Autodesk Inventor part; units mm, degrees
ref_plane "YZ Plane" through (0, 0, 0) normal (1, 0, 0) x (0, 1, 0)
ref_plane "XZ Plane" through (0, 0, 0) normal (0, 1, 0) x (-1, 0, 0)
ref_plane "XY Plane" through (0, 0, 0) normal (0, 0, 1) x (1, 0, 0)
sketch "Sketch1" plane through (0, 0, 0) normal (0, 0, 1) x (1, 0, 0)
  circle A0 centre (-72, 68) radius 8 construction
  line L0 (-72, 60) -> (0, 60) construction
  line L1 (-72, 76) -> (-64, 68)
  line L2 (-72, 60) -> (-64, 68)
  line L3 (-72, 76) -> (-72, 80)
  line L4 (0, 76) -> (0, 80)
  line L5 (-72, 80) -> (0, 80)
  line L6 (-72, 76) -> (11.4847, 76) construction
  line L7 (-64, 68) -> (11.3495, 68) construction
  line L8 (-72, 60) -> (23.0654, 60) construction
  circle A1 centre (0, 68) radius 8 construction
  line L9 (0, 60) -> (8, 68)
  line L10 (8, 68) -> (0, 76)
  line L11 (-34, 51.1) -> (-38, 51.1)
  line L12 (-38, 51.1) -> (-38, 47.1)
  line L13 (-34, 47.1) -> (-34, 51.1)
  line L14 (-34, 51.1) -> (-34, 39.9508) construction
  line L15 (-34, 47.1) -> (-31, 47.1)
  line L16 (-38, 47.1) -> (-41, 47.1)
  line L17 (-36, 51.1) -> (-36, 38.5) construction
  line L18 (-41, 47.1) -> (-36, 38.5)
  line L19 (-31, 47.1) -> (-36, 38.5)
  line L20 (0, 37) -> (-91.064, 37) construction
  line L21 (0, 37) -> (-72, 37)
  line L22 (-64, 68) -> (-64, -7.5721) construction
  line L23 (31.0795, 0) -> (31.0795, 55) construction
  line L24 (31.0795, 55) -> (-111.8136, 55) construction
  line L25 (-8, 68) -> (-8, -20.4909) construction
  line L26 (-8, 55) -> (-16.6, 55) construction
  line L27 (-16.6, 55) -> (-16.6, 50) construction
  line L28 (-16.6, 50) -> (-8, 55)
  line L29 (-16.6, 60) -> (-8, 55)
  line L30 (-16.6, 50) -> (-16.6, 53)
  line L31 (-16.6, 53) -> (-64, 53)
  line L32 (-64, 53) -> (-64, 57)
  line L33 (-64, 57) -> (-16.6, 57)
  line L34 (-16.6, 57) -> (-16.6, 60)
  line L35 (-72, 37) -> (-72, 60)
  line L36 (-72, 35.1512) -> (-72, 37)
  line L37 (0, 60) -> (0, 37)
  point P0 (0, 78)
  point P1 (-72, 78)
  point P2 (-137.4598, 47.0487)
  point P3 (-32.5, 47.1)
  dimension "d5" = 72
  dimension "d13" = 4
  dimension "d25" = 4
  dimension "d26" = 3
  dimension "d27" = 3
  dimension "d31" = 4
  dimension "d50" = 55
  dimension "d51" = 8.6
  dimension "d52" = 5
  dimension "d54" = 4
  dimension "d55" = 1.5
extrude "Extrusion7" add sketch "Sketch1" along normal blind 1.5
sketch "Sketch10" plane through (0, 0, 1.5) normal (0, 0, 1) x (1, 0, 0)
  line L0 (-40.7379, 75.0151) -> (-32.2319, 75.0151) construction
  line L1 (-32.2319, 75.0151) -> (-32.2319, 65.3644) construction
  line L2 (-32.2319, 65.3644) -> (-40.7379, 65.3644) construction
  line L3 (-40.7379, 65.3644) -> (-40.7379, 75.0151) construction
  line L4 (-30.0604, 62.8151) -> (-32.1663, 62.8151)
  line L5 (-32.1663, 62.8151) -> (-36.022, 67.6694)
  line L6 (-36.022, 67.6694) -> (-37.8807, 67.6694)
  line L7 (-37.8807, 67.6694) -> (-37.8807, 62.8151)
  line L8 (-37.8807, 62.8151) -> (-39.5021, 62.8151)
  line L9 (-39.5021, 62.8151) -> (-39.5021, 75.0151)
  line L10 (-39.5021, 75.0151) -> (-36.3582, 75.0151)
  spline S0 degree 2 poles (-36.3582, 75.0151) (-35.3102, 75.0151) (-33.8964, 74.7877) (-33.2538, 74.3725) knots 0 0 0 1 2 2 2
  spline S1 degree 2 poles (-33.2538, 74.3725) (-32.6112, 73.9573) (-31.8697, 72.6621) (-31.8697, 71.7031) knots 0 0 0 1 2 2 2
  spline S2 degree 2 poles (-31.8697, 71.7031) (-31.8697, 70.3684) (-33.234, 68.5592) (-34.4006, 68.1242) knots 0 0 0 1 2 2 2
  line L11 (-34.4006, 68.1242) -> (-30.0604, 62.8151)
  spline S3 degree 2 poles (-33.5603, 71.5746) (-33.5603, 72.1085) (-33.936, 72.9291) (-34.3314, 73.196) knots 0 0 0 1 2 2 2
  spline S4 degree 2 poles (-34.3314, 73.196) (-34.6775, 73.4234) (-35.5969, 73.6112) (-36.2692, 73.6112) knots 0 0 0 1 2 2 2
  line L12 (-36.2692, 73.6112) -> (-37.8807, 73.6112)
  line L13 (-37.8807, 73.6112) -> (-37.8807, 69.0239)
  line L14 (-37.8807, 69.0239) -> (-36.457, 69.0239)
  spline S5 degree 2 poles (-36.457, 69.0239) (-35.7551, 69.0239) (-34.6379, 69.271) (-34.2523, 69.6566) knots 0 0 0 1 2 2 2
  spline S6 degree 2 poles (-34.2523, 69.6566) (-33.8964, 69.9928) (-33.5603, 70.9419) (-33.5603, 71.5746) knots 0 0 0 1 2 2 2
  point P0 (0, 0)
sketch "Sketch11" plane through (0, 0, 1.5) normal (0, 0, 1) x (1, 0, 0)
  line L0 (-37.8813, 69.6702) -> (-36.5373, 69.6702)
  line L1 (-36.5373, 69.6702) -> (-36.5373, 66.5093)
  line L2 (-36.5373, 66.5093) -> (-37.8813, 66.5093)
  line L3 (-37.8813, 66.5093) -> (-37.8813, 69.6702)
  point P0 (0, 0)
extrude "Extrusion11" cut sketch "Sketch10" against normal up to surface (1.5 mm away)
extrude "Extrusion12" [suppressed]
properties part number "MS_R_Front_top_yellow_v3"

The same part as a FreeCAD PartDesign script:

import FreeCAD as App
import Part
import Sketcher

V = App.Vector
Q = App.Units.Quantity

doc = App.newDocument("Part")
body = doc.addObject("PartDesign::Body", "Body")
body.AllowCompound = True

# Sketch on XY plane
sketch1 = body.newObject("Sketcher::SketchObject", "Sketch")
sketch1.AttachmentSupport = (doc.getObject("XY_Plane"), [""])
sketch1.MapMode = "FlatFace"
sketch1.addGeometry([
    Part.LineSegment(V(-72, 80, 0), V(-72, 76, 0)),  # 0
    Part.LineSegment(V(-72, 76, 0), V(-64, 68, 0)),  # 1
    Part.LineSegment(V(-64, 68, 0), V(-72, 60, 0)),  # 2
    Part.LineSegment(V(-72, 60, 0), V(-72, 37, 0)),  # 3
    Part.LineSegment(V(-72, 37, 0), V(0, 37, 0)),  # 4
    Part.LineSegment(V(0, 37, 0), V(0, 60, 0)),  # 5
    Part.LineSegment(V(0, 60, 0), V(8, 68, 0)),  # 6
    Part.LineSegment(V(8, 68, 0), V(0, 76, 0)),  # 7
    Part.LineSegment(V(0, 76, 0), V(0, 80, 0)),  # 8
    Part.LineSegment(V(0, 80, 0), V(-72, 80, 0)),  # 9
    Part.LineSegment(V(-38, 51.1, 0), V(-34, 51.1, 0)),  # 10
    Part.LineSegment(V(-34, 51.1, 0), V(-34, 47.1, 0)),  # 11
    Part.LineSegment(V(-34, 47.1, 0), V(-31, 47.1, 0)),  # 12
    Part.LineSegment(V(-31, 47.1, 0), V(-36, 38.5, 0)),  # 13
    Part.LineSegment(V(-36, 38.5, 0), V(-41, 47.1, 0)),  # 14
    Part.LineSegment(V(-41, 47.1, 0), V(-38, 47.1, 0)),  # 15
    Part.LineSegment(V(-38, 47.1, 0), V(-38, 51.1, 0)),  # 16
    Part.LineSegment(V(-8, 55, 0), V(-16.6, 50, 0)),  # 17
    Part.LineSegment(V(-16.6, 50, 0), V(-16.6, 53, 0)),  # 18
    Part.LineSegment(V(-16.6, 53, 0), V(-64, 53, 0)),  # 19
    Part.LineSegment(V(-64, 53, 0), V(-64, 57, 0)),  # 20
    Part.LineSegment(V(-64, 57, 0), V(-16.6, 57, 0)),  # 21
    Part.LineSegment(V(-16.6, 57, 0), V(-16.6, 60, 0)),  # 22
    Part.LineSegment(V(-16.6, 60, 0), V(-8, 55, 0)),  # 23
], False)
sketch1.addConstraint([
    Sketcher.Constraint("Coincident", 0, 2, 1, 1),
    Sketcher.Constraint("Coincident", 1, 2, 2, 1),
    Sketcher.Constraint("Coincident", 2, 2, 3, 1),
    Sketcher.Constraint("Coincident", 3, 2, 4, 1),
    Sketcher.Constraint("Coincident", 4, 2, 5, 1),
    Sketcher.Constraint("Coincident", 5, 2, 6, 1),
    Sketcher.Constraint("Coincident", 6, 2, 7, 1),
    Sketcher.Constraint("Coincident", 7, 2, 8, 1),
    Sketcher.Constraint("Coincident", 8, 2, 9, 1),
    Sketcher.Constraint("Coincident", 9, 2, 0, 1),
    Sketcher.Constraint("Coincident", 10, 2, 11, 1),
    Sketcher.Constraint("Coincident", 11, 2, 12, 1),
    Sketcher.Constraint("Coincident", 12, 2, 13, 1),
    Sketcher.Constraint("Coincident", 13, 2, 14, 1),
    Sketcher.Constraint("Coincident", 14, 2, 15, 1),
    Sketcher.Constraint("Coincident", 15, 2, 16, 1),
    Sketcher.Constraint("Coincident", 16, 2, 10, 1),
    Sketcher.Constraint("Coincident", 17, 2, 18, 1),
    Sketcher.Constraint("Coincident", 18, 2, 19, 1),
    Sketcher.Constraint("Coincident", 19, 2, 20, 1),
    Sketcher.Constraint("Coincident", 20, 2, 21, 1),
    Sketcher.Constraint("Coincident", 21, 2, 22, 1),
    Sketcher.Constraint("Coincident", 22, 2, 23, 1),
    Sketcher.Constraint("Coincident", 23, 2, 17, 1),
    Sketcher.Constraint("Vertical", 0),
    Sketcher.Constraint("Vertical", 3),
    Sketcher.Constraint("Horizontal", 4),
    Sketcher.Constraint("Vertical", 5),
    Sketcher.Constraint("Vertical", 8),
    Sketcher.Constraint("Horizontal", 9),
    Sketcher.Constraint("Horizontal", 10),
    Sketcher.Constraint("Vertical", 11),
    Sketcher.Constraint("Horizontal", 12),
    Sketcher.Constraint("Horizontal", 15),
    Sketcher.Constraint("Vertical", 16),
    Sketcher.Constraint("Vertical", 18),
    Sketcher.Constraint("Horizontal", 19),
    Sketcher.Constraint("Vertical", 20),
    Sketcher.Constraint("Horizontal", 21),
    Sketcher.Constraint("Vertical", 22),
    Sketcher.Constraint("PointOnObject", 4, 2, -2),
    Sketcher.Constraint("PointOnObject", 7, 2, -2),
    Sketcher.Constraint("Perpendicular", 1, 2),
    Sketcher.Constraint("Parallel", 2, 6),
    Sketcher.Constraint("Perpendicular", 6, 7),
    Sketcher.Constraint("Perpendicular", 14, 17),
    Sketcher.Constraint("Perpendicular", 13, 23),
    Sketcher.Constraint("Horizontal", 2, 2, 5, 2),
    Sketcher.Constraint("Horizontal", 1, 2, 6, 2),
    Sketcher.Constraint("Horizontal", 0, 2, 7, 2),
    Sketcher.Constraint("Horizontal", 12, 2, 14, 2),
    Sketcher.Constraint("Horizontal", 5, 2, 22, 2),
    Sketcher.Constraint("Vertical", 1, 2, 19, 2),
    Sketcher.Constraint("Vertical", 18, 2, 21, 2),
    Sketcher.Constraint("Equal", 12, 15),
    Sketcher.Constraint("Equal", 10, 0),
    Sketcher.Constraint("Equal", 8, 11),
    Sketcher.Constraint("Equal", 15, 18),
    Sketcher.Constraint("Equal", 16, 20),
    Sketcher.Constraint("Equal", 18, 22),
    Sketcher.Constraint("Equal", 1, 2),
    Sketcher.Constraint("Equal", 13, 14),
    Sketcher.Constraint("DistanceX", 4, 1, 4, 2, 72.0),
    Sketcher.Constraint("DistanceX", 10, 1, 10, 2, 4.0),
    Sketcher.Constraint("DistanceX", 12, 1, 12, 2, 3.0),
    Sketcher.Constraint("DistanceY", -1, 1, 23, 2, 55.0),
    Sketcher.Constraint("DistanceY", 13, 2, 11, 2, 8.6),
    Sketcher.Constraint("DistanceY", 3, 2, 13, 2, 1.5),
    Sketcher.Constraint("DistanceY", 3, 2, 3, 1, 23.0),
    Sketcher.Constraint("DistanceX", 19, 2, 19, 1, 47.4),
    Sketcher.Constraint("DistanceY", -1, 1, 0, 2, 76.0),
    Sketcher.Constraint("DistanceX", 10, 2, -1, 1, 34.0),
])
pad1 = body.newObject("PartDesign::Pad", "Pad")
pad1.Profile = sketch1
pad1.Length = 1.5

# Sketch on XY plane
sketch2 = body.newObject("Sketcher::SketchObject", "Sketch001")
sketch2.AttachmentSupport = (doc.getObject("XY_Plane"), [""])
sketch2.MapMode = "FlatFace"
sketch2.AttachmentOffset = App.Placement(V(0, 0, 1.5), App.Rotation())
sketch2.addGeometry([
    Part.LineSegment(V(-32.1663, 62.8151, 0), V(-30.0604, 62.8151, 0)),  # 0
    Part.LineSegment(V(-30.0604, 62.8151, 0), V(-34.4006, 68.1242, 0)),  # 1
    Part.BSplineCurve([V(-31.8697, 71.7031, 0), V(-31.8697, 70.3684, 0), V(-33.234, 68.5592, 0), V(-34.4006, 68.1242, 0)], [3, 1, 3], [0, 1, 2], False, 2, [1, 1, 1, 1], False),  # 2
    Part.BSplineCurve([V(-33.2538, 74.3725, 0), V(-32.6112, 73.9573, 0), V(-31.8697, 72.6621, 0), V(-31.8697, 71.7031, 0)], [3, 1, 3], [0, 1, 2], False, 2, [1, 1, 1, 1], False),  # 3
    Part.BSplineCurve([V(-36.3582, 75.0151, 0), V(-35.3102, 75.0151, 0), V(-33.8964, 74.7877, 0), V(-33.2538, 74.3725, 0)], [3, 1, 3], [0, 1, 2], False, 2, [1, 1, 1, 1], False),  # 4
    Part.LineSegment(V(-36.3582, 75.0151, 0), V(-39.5021, 75.0151, 0)),  # 5
    Part.LineSegment(V(-39.5021, 75.0151, 0), V(-39.5021, 62.8151, 0)),  # 6
    Part.LineSegment(V(-39.5021, 62.8151, 0), V(-37.8807, 62.8151, 0)),  # 7
    Part.LineSegment(V(-37.8807, 62.8151, 0), V(-37.8807, 67.6694, 0)),  # 8
    Part.LineSegment(V(-37.8807, 67.6694, 0), V(-36.022, 67.6694, 0)),  # 9
    Part.LineSegment(V(-36.022, 67.6694, 0), V(-32.1663, 62.8151, 0)),  # 10
    Part.BSplineCurve([V(-33.5603, 71.5746, 0), V(-33.5603, 72.1085, 0), V(-33.936, 72.9291, 0), V(-34.3314, 73.196, 0)], [3, 1, 3], [0, 1, 2], False, 2, [1, 1, 1, 1], False),  # 11
    Part.BSplineCurve([V(-34.2523, 69.6566, 0), V(-33.8964, 69.9928, 0), V(-33.5603, 70.9419, 0), V(-33.5603, 71.5746, 0)], [3, 1, 3], [0, 1, 2], False, 2, [1, 1, 1, 1], False),  # 12
    Part.BSplineCurve([V(-36.457, 69.0239, 0), V(-35.7551, 69.0239, 0), V(-34.6379, 69.271, 0), V(-34.2523, 69.6566, 0)], [3, 1, 3], [0, 1, 2], False, 2, [1, 1, 1, 1], False),  # 13
    Part.LineSegment(V(-36.457, 69.0239, 0), V(-37.8807, 69.0239, 0)),  # 14
    Part.LineSegment(V(-37.8807, 69.0239, 0), V(-37.8807, 73.6112, 0)),  # 15
    Part.LineSegment(V(-37.8807, 73.6112, 0), V(-36.2692, 73.6112, 0)),  # 16
    Part.BSplineCurve([V(-34.3314, 73.196, 0), V(-34.6775, 73.4234, 0), V(-35.5969, 73.6112, 0), V(-36.2692, 73.6112, 0)], [3, 1, 3], [0, 1, 2], False, 2, [1, 1, 1, 1], False),  # 17
], False)
sketch2.addConstraint([
    Sketcher.Constraint("Block", 2),
    Sketcher.Constraint("Block", 3),
    Sketcher.Constraint("Block", 4),
    Sketcher.Constraint("Block", 11),
    Sketcher.Constraint("Block", 12),
    Sketcher.Constraint("Block", 13),
    Sketcher.Constraint("Block", 17),
    Sketcher.Constraint("Coincident", 0, 2, 1, 1),
    Sketcher.Constraint("Coincident", 1, 2, 2, 2),
    Sketcher.Constraint("Coincident", 4, 1, 5, 1),
    Sketcher.Constraint("Coincident", 5, 2, 6, 1),
    Sketcher.Constraint("Coincident", 6, 2, 7, 1),
    Sketcher.Constraint("Coincident", 7, 2, 8, 1),
    Sketcher.Constraint("Coincident", 8, 2, 9, 1),
    Sketcher.Constraint("Coincident", 9, 2, 10, 1),
    Sketcher.Constraint("Coincident", 10, 2, 0, 1),
    Sketcher.Constraint("Coincident", 13, 1, 14, 1),
    Sketcher.Constraint("Coincident", 14, 2, 15, 1),
    Sketcher.Constraint("Coincident", 15, 2, 16, 1),
    Sketcher.Constraint("Coincident", 16, 2, 17, 2),
    Sketcher.Constraint("Horizontal", 0),
    Sketcher.Constraint("Horizontal", 5),
    Sketcher.Constraint("Vertical", 6),
    Sketcher.Constraint("Horizontal", 7),
    Sketcher.Constraint("Vertical", 8),
    Sketcher.Constraint("Horizontal", 9),
    Sketcher.Constraint("Horizontal", 14),
    Sketcher.Constraint("Vertical", 15),
    Sketcher.Constraint("Horizontal", 16),
    Sketcher.Constraint("Horizontal", 0, 2, 6, 2),
    Sketcher.Constraint("Vertical", 8, 2, 14, 2),
    Sketcher.Constraint("DistanceY", 6, 2, 6, 1, 12.2),
    Sketcher.Constraint("Angle", 10, Q("-51.5404 deg")),
    Sketcher.Constraint("DistanceX", 0, 1, 0, 2, 2.106),
    Sketcher.Constraint("DistanceX", 5, 2, 5, 1, 3.144),
    Sketcher.Constraint("DistanceX", 7, 2, 1, 2, 3.48),
    Sketcher.Constraint("DistanceX", 6, 2, 9, 2, 3.48),
    Sketcher.Constraint("DistanceY", 8, 1, 8, 2, 4.8543),
])
pocket1 = body.newObject("PartDesign::Pocket", "Pocket")
pocket1.Profile = sketch2
pocket1.Length = 1.5

doc.recompute()
